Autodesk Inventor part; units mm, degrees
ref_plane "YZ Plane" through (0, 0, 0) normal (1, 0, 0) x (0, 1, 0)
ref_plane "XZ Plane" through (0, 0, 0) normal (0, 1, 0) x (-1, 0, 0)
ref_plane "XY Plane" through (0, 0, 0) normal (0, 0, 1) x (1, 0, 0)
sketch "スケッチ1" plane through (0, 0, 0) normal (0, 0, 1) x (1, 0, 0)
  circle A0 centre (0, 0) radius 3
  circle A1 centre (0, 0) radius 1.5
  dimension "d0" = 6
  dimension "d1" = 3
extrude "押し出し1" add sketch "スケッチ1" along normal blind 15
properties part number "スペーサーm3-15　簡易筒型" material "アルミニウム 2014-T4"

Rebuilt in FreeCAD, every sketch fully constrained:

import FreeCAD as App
import Part
import Sketcher
from FreeCAD import Vector
Q = App.Units.Quantity

doc = App.newDocument("Part")
params = doc.addObject("Spreadsheet::Sheet", "Params")
for row, (alias, value) in enumerate([
    ("sketch1_diameter", "6 mm"),
    ("sketch1_diameter2", "3 mm"),
    ("pad1_length", "15 mm"),
], start=1):
    params.set(f"A{row}", alias)
    params.set(f"B{row}", "=" + value)
    params.setAlias(f"B{row}", alias)

body = doc.addObject("PartDesign::Body", "Body")

# Sketch on XY plane
sketch1 = body.newObject("Sketcher::SketchObject", "Sketch")
sketch1.AttachmentSupport = (doc.getObject("XY_Plane"), [""])
sketch1.MapMode = "FlatFace"
sketch1.addGeometry([
    Part.Circle(Vector(0, 0, 0), Vector(0, 0, 1), 3),
    Part.Circle(Vector(0, 0, 0), Vector(0, 0, 1), 1.5),
], False)
sketch1.addConstraint([
    Sketcher.Constraint("Coincident", 0, 3, -1, 1),
    Sketcher.Constraint("Coincident", 1, 3, -1, 1),
    Sketcher.Constraint("Diameter", 0, Q("6 mm")),
    Sketcher.Constraint("Diameter", 1, Q("3 mm")),
])
sketch1.setExpression("Constraints[2]", "Params.sketch1_diameter")
sketch1.setExpression("Constraints[3]", "Params.sketch1_diameter2")
pad1 = body.newObject("PartDesign::Pad", "Pad")
pad1.Profile = sketch1
pad1.setExpression("Length", "Params.pad1_length")

doc.recompute()
